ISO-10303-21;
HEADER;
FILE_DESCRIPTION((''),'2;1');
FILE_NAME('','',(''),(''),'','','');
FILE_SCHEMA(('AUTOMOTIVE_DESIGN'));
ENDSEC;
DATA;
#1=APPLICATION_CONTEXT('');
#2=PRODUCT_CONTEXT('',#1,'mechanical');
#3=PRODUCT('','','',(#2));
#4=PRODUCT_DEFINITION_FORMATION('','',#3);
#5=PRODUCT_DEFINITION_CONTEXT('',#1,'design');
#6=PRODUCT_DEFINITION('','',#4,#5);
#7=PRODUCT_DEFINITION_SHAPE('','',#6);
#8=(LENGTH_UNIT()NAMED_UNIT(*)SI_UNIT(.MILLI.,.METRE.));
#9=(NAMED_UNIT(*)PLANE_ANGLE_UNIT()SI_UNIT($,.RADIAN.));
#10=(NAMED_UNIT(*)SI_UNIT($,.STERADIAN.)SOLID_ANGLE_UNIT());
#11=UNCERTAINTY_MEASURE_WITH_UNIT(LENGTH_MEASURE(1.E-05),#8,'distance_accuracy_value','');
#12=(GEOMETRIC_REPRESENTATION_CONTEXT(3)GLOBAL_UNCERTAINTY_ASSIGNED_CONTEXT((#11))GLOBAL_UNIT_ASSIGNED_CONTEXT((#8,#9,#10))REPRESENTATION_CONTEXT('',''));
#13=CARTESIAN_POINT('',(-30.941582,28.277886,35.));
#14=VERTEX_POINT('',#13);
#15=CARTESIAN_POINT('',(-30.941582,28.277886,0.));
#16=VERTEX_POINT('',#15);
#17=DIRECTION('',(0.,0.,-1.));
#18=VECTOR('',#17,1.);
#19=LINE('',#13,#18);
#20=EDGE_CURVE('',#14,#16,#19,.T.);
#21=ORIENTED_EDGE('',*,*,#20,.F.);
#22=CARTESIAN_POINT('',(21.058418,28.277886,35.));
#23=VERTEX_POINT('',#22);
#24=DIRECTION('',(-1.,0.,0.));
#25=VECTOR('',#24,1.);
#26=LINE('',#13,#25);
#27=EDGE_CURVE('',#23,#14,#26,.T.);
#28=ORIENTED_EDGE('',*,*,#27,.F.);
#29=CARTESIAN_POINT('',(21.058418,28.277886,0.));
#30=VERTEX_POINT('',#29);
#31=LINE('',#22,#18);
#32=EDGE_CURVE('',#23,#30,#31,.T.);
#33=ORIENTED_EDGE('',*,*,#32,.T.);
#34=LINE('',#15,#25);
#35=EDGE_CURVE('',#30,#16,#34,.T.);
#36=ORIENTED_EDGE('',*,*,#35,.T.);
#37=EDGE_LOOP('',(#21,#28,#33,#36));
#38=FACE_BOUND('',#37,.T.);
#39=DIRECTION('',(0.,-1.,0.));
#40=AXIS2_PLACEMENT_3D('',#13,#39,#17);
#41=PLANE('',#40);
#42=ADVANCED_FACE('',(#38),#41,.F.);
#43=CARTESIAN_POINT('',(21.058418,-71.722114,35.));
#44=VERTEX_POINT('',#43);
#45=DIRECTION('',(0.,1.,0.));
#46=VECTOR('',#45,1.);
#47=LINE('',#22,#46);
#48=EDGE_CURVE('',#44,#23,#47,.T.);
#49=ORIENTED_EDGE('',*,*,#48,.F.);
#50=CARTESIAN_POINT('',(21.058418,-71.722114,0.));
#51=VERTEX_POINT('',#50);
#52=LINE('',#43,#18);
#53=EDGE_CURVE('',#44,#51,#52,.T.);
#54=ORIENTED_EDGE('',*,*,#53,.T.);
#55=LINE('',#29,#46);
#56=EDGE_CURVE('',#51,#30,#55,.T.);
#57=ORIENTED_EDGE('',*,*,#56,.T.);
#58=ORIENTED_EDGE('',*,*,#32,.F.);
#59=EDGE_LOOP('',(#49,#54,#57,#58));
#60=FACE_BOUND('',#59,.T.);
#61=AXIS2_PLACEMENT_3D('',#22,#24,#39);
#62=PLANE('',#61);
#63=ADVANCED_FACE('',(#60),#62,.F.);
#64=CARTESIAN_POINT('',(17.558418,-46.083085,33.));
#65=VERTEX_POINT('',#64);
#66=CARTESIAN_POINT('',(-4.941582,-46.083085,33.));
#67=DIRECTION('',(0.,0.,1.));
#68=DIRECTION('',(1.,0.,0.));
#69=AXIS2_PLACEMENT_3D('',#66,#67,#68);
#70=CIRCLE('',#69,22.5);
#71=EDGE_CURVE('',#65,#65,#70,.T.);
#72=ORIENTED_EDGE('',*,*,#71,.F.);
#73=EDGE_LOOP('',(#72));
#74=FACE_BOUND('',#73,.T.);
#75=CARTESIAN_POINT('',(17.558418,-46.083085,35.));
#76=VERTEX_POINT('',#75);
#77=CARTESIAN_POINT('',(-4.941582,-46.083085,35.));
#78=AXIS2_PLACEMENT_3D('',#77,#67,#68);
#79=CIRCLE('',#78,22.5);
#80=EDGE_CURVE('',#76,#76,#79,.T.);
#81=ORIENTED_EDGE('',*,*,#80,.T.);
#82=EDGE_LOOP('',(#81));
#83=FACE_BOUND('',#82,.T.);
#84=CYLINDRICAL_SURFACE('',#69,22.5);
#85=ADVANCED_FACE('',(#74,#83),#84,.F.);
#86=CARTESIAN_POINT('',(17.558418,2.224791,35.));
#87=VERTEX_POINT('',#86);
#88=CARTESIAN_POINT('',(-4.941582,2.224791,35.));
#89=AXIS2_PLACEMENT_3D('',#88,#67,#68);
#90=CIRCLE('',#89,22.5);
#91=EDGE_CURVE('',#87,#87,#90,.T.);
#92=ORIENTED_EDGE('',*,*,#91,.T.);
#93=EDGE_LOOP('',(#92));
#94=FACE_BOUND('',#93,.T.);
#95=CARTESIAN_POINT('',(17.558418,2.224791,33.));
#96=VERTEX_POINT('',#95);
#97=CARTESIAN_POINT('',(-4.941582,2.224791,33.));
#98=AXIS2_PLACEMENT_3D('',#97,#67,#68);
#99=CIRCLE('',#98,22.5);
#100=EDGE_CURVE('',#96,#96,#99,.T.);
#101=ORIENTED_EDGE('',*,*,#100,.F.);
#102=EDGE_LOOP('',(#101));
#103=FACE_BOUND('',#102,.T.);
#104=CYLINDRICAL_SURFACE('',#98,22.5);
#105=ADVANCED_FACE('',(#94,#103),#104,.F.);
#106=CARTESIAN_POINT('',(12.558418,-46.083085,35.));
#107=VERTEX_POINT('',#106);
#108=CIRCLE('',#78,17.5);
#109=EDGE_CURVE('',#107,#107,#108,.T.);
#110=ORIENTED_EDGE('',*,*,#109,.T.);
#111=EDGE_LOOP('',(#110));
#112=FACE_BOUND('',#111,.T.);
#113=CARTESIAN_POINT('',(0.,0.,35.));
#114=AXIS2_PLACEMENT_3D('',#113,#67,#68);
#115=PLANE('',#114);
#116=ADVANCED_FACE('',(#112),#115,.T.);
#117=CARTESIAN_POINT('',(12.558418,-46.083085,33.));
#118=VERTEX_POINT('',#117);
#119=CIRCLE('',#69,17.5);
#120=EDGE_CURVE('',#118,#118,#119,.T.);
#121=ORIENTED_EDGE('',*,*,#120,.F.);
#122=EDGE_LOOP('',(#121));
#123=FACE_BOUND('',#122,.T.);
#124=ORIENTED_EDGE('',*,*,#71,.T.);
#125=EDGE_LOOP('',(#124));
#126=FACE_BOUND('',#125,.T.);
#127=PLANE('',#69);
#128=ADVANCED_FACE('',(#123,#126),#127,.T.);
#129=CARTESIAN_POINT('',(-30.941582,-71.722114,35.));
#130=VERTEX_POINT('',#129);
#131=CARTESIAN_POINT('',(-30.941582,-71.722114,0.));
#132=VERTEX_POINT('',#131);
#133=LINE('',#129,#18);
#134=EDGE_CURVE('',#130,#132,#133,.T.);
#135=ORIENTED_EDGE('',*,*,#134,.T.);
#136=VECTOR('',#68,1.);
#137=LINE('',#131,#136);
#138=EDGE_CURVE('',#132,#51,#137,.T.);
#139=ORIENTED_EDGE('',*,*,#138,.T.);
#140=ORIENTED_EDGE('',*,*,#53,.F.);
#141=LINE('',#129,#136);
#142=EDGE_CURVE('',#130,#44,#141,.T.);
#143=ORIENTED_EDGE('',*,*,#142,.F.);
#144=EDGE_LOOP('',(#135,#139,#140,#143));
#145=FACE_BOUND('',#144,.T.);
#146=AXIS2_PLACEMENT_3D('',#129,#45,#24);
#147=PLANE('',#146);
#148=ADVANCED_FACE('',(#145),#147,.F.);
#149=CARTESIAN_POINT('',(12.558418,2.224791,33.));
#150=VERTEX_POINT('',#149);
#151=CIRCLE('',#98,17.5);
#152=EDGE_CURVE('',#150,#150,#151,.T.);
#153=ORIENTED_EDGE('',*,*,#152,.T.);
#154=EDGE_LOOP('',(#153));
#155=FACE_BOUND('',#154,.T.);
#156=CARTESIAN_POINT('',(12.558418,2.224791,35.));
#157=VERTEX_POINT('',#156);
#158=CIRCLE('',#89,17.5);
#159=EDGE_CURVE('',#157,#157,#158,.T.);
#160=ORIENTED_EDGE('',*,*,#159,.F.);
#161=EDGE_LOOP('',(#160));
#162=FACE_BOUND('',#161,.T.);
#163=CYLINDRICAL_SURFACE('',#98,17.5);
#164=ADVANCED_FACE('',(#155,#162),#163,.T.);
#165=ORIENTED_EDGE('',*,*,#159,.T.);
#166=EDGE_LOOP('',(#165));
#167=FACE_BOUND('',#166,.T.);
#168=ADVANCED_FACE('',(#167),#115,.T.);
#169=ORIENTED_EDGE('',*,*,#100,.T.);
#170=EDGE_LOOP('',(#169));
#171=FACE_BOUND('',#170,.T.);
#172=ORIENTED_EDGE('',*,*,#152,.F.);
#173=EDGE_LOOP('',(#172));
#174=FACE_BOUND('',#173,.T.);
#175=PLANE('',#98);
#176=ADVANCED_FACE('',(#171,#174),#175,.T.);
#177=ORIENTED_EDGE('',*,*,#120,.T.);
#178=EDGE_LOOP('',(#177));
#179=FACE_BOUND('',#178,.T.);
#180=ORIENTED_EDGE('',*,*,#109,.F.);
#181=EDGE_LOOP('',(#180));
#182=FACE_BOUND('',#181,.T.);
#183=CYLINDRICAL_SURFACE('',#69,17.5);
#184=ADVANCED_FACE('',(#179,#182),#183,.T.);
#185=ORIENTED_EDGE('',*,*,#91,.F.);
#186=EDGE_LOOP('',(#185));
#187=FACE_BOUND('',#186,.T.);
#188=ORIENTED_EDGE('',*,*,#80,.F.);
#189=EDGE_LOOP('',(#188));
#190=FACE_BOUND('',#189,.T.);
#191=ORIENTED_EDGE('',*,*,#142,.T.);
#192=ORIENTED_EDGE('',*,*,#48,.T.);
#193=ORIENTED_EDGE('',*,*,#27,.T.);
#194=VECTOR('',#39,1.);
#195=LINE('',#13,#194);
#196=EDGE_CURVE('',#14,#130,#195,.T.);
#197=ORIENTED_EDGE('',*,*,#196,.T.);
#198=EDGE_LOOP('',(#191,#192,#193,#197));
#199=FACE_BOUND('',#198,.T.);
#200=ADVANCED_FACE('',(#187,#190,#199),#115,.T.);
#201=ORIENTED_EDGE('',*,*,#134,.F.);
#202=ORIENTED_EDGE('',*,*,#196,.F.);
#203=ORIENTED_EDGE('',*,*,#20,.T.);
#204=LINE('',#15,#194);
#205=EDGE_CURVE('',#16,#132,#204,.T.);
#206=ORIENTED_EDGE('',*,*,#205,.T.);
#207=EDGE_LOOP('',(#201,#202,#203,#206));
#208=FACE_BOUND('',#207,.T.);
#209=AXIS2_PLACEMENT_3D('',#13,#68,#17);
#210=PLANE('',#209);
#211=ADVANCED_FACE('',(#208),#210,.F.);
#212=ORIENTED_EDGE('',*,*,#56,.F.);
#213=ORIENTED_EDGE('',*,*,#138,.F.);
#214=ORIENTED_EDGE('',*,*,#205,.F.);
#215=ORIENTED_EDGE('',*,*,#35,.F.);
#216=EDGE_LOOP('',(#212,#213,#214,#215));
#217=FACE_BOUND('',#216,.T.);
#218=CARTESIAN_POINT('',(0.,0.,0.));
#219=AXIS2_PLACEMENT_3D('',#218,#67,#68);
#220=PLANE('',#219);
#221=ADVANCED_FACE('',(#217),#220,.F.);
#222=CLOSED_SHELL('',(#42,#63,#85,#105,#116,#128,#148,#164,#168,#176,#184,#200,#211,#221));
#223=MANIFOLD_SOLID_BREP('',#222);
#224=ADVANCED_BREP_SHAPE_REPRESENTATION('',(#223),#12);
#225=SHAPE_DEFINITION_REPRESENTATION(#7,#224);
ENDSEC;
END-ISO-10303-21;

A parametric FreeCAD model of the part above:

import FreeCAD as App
import Part
import Sketcher
Q = App.Units.Quantity

doc = App.newDocument("Part")
body = doc.addObject("PartDesign::Body", "Body")

# Sketch on XY plane
sketch1 = body.newObject("Sketcher::SketchObject", "Sketch")
sketch1.AttachmentSupport = (doc.getObject("XY_Plane"), [""])
sketch1.MapMode = "FlatFace"
sketch1.addGeometry(Part.LineSegment(App.Vector(-31, 28, 0), App.Vector(-31, -72, 0)), False)
sketch1.addGeometry(Part.LineSegment(App.Vector(-31, -72, 0), App.Vector(21, -72, 0)), False)
sketch1.addGeometry(Part.LineSegment(App.Vector(21, -72, 0), App.Vector(21, 28, 0)), False)
sketch1.addGeometry(Part.LineSegment(App.Vector(21, 28, 0), App.Vector(-31, 28, 0)), False)
sketch1.addConstraint(Sketcher.Constraint("Coincident", 0, 2, 1, 1))
sketch1.addConstraint(Sketcher.Constraint("Coincident", 1, 2, 2, 1))
sketch1.addConstraint(Sketcher.Constraint("Coincident", 2, 2, 3, 1))
sketch1.addConstraint(Sketcher.Constraint("Coincident", 3, 2, 0, 1))
sketch1.addConstraint(Sketcher.Constraint("Vertical", 0))
sketch1.addConstraint(Sketcher.Constraint("Horizontal", 1))
sketch1.addConstraint(Sketcher.Constraint("Vertical", 2))
sketch1.addConstraint(Sketcher.Constraint("Horizontal", 3))
sketch1.addConstraint(Sketcher.Constraint("DistanceX", 1, 1, 1, 2, Q("52 mm")))
sketch1.addConstraint(Sketcher.Constraint("DistanceY", 0, 2, 0, 1, Q("100 mm")))
sketch1.addConstraint(Sketcher.Constraint("DistanceX", 0, 2, -1, 1, Q("30.941582 mm")))
sketch1.addConstraint(Sketcher.Constraint("DistanceY", 0, 2, -1, 1, Q("71.722114 mm")))
pad1 = body.newObject("PartDesign::Pad", "Pad")
pad1.Profile = sketch1
pad1.Length = 35

# Sketch on XY plane
sketch2 = body.newObject("Sketcher::SketchObject", "Sketch001")
sketch2.AttachmentSupport = (doc.getObject("XY_Plane"), [""])
sketch2.MapMode = "FlatFace"
sketch2.AttachmentOffset = App.Placement(App.Vector(0, 0, 35), App.Rotation())
sketch2.addGeometry(Part.Circle(App.Vector(-5, 2, 0), App.Vector(0, 0, 1), 22), False)
sketch2.addGeometry(Part.Circle(App.Vector(-5, 2, 0), App.Vector(0, 0, 1), 18), False)
sketch2.addGeometry(Part.Circle(App.Vector(-5, -46, 0), App.Vector(0, 0, 1), 22), False)
sketch2.addGeometry(Part.Circle(App.Vector(-5, -46, 0), App.Vector(0, 0, 1), 18), False)
sketch2.addConstraint(Sketcher.Constraint("Coincident", 1, 3, 0, 3))
sketch2.addConstraint(Sketcher.Constraint("Coincident", 3, 3, 2, 3))
sketch2.addConstraint(Sketcher.Constraint("Equal", 0, 2))
sketch2.addConstraint(Sketcher.Constraint("Equal", 1, 3))
sketch2.addConstraint(Sketcher.Constraint("Vertical", 1, 3, 2, 3))
sketch2.addConstraint(Sketcher.Constraint("Diameter", 0, Q("45 mm")))
sketch2.addConstraint(Sketcher.Constraint("Diameter", 1, Q("35 mm")))
sketch2.addConstraint(Sketcher.Constraint("DistanceY", -1, 1, 0, 3, Q("2.224791 mm")))
sketch2.addConstraint(Sketcher.Constraint("DistanceX", 0, 3, -1, 1, Q("4.941582 mm")))
sketch2.addConstraint(Sketcher.Constraint("DistanceY", 2, 3, -1, 1, Q("46.083085 mm")))
pocket1 = body.newObject("PartDesign::Pocket", "Pocket")
pocket1.Profile = sketch2
pocket1.Length = 2

doc.recompute()
